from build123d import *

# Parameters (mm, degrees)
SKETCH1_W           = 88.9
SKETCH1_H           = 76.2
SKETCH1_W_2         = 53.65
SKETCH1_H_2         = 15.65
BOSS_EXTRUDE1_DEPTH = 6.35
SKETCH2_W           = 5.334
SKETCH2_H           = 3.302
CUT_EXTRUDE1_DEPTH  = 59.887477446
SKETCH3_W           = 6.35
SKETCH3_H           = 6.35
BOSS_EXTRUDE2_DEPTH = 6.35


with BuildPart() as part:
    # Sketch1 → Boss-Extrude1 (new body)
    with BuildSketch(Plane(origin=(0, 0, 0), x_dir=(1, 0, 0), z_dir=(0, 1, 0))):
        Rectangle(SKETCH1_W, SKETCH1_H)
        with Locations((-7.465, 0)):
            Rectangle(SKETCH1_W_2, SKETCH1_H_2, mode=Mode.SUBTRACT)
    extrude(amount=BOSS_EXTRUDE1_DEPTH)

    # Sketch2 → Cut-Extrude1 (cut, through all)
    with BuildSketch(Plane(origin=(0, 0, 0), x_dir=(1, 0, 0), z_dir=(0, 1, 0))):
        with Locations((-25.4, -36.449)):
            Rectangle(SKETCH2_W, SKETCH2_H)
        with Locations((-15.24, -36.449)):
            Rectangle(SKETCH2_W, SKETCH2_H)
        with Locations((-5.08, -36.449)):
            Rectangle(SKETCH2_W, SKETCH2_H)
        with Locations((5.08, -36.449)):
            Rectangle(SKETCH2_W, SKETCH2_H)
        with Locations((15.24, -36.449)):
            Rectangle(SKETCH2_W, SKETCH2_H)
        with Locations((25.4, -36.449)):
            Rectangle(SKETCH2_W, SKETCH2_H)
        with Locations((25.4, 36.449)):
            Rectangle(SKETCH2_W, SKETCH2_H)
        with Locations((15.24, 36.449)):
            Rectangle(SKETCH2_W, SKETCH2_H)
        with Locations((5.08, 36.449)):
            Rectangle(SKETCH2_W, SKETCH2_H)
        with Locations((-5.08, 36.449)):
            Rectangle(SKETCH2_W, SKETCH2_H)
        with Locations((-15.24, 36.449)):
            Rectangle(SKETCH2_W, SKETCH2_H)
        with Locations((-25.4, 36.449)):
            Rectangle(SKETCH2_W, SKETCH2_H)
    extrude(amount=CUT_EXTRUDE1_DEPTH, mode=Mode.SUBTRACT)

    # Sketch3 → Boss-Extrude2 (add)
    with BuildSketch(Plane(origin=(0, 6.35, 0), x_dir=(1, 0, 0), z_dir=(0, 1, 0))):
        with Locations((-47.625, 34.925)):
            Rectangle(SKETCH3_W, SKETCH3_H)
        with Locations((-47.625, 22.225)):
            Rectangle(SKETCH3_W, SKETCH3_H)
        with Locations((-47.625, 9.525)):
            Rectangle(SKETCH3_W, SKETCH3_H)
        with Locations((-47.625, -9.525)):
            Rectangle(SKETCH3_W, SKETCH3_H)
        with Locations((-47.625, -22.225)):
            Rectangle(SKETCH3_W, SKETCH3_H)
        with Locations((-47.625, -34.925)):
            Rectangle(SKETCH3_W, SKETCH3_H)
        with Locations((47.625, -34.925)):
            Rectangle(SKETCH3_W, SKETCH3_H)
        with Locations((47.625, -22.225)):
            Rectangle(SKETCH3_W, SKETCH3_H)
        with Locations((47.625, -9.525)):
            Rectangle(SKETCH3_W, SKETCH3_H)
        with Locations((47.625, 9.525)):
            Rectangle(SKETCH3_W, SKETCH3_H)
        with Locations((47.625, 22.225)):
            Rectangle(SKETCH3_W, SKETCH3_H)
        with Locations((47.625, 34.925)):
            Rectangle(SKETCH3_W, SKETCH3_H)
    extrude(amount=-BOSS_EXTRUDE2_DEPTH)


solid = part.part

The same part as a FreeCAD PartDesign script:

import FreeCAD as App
import Part
import Sketcher

V = App.Vector
Q = App.Units.Quantity

doc = App.newDocument("Part")
body = doc.addObject("PartDesign::Body", "Body")

# Sketch on XZ plane
sketch1 = body.newObject("Sketcher::SketchObject", "Sketch")
sketch1.AttachmentSupport = (doc.getObject("XZ_Plane"), [""])
sketch1.MapMode = "FlatFace"
sketch1.addGeometry([
    Part.LineSegment(V(-44, -38, 0), V(-44, 38, 0)),  # 0
    Part.LineSegment(V(-44, 38, 0), V(44, 38, 0)),  # 1
    Part.LineSegment(V(44, 38, 0), V(44, -38, 0)),  # 2
    Part.LineSegment(V(44, -38, 0), V(-44, -38, 0)),  # 3
    Part.LineSegment(V(19, 8, 0), V(-34, 8, 0)),  # 4
    Part.LineSegment(V(-34, 8, 0), V(-34, -8, 0)),  # 5
    Part.LineSegment(V(-34, -8, 0), V(19, -8, 0)),  # 6
    Part.LineSegment(V(19, -8, 0), V(19, 8, 0)),  # 7
], False)
sketch1.addConstraint([
    Sketcher.Constraint("Coincident", 0, 2, 1, 1),
    Sketcher.Constraint("Coincident", 1, 2, 2, 1),
    Sketcher.Constraint("Coincident", 2, 2, 3, 1),
    Sketcher.Constraint("Coincident", 3, 2, 0, 1),
    Sketcher.Constraint("Coincident", 4, 2, 5, 1),
    Sketcher.Constraint("Coincident", 5, 2, 6, 1),
    Sketcher.Constraint("Coincident", 6, 2, 7, 1),
    Sketcher.Constraint("Coincident", 7, 2, 4, 1),
    Sketcher.Constraint("Vertical", 0),
    Sketcher.Constraint("Horizontal", 1),
    Sketcher.Constraint("Vertical", 2),
    Sketcher.Constraint("Horizontal", 3),
    Sketcher.Constraint("Horizontal", 4),
    Sketcher.Constraint("Vertical", 5),
    Sketcher.Constraint("Horizontal", 6),
    Sketcher.Constraint("Vertical", 7),
    Sketcher.Constraint("Symmetric", 0, 2, 2, 2, -1, 1),
    Sketcher.Constraint("DistanceY", 0, 1, 0, 2, Q("3 in")),
    Sketcher.Constraint("DistanceX", 1, 1, 1, 2, Q("3.5 in")),
    Sketcher.Constraint("DistanceX", 0, 2, 4, 2, Q("0.4 in")),
    Sketcher.Constraint("DistanceX", 4, 2, 4, 1, 53.65),
    Sketcher.Constraint("DistanceY", 5, 2, 5, 1, 15.65),
    Sketcher.Constraint("DistanceY", -1, 1, 4, 2, 7.825),
])
pad1 = body.newObject("PartDesign::Pad", "Pad")
pad1.Profile = sketch1
pad1.Length = Q("0.25 in")
pad1.Reversed = True

# Sketch on XZ plane
sketch2 = body.newObject("Sketcher::SketchObject", "Sketch001")
sketch2.AttachmentSupport = (doc.getObject("XZ_Plane"), [""])
sketch2.MapMode = "FlatFace"
sketch2.addGeometry([
    Part.LineSegment(V(-28.1, 34.8, 0), V(-28.1, 38.1, 0)),  # 0
    Part.LineSegment(V(-28.1, 38.1, 0), V(-22.7, 38.1, 0)),  # 1
    Part.LineSegment(V(-22.7, 38.1, 0), V(-22.7, 34.8, 0)),  # 2
    Part.LineSegment(V(-22.7, 34.8, 0), V(-28.1, 34.8, 0)),  # 3
    Part.LineSegment(V(-17.9, 34.8, 0), V(-17.9, 38.1, 0)),  # 4
    Part.LineSegment(V(-17.9, 38.1, 0), V(-12.6, 38.1, 0)),  # 5
    Part.LineSegment(V(-12.6, 38.1, 0), V(-12.6, 34.8, 0)),  # 6
    Part.LineSegment(V(-12.6, 34.8, 0), V(-17.9, 34.8, 0)),  # 7
    Part.LineSegment(V(-7.7, 34.8, 0), V(-7.7, 38.1, 0)),  # 8
    Part.LineSegment(V(-7.7, 38.1, 0), V(-2.4, 38.1, 0)),  # 9
    Part.LineSegment(V(-2.4, 38.1, 0), V(-2.4, 34.8, 0)),  # 10
    Part.LineSegment(V(-2.4, 34.8, 0), V(-7.7, 34.8, 0)),  # 11
    Part.LineSegment(V(2.4, 34.8, 0), V(2.4, 38.1, 0)),  # 12
    Part.LineSegment(V(2.4, 38.1, 0), V(7.7, 38.1, 0)),  # 13
    Part.LineSegment(V(7.7, 38.1, 0), V(7.7, 34.8, 0)),  # 14
    Part.LineSegment(V(7.7, 34.8, 0), V(2.4, 34.8, 0)),  # 15
    Part.LineSegment(V(12.6, 34.8, 0), V(12.6, 38.1, 0)),  # 16
    Part.LineSegment(V(12.6, 38.1, 0), V(17.9, 38.1, 0)),  # 17
    Part.LineSegment(V(17.9, 38.1, 0), V(17.9, 34.8, 0)),  # 18
    Part.LineSegment(V(17.9, 34.8, 0), V(12.6, 34.8, 0)),  # 19
    Part.LineSegment(V(22.7, 34.8, 0), V(22.7, 38.1, 0)),  # 20
    Part.LineSegment(V(22.7, 38.1, 0), V(28.1, 38.1, 0)),  # 21
    Part.LineSegment(V(28.1, 38.1, 0), V(28.1, 34.8, 0)),  # 22
    Part.LineSegment(V(28.1, 34.8, 0), V(22.7, 34.8, 0)),  # 23
    Part.LineSegment(V(22.7, -38.1, 0), V(22.7, -34.8, 0)),  # 24
    Part.LineSegment(V(22.7, -34.8, 0), V(28.1, -34.8, 0)),  # 25
    Part.LineSegment(V(28.1, -34.8, 0), V(28.1, -38.1, 0)),  # 26
    Part.LineSegment(V(28.1, -38.1, 0), V(22.7, -38.1, 0)),  # 27
    Part.LineSegment(V(12.6, -38.1, 0), V(12.6, -34.8, 0)),  # 28
    Part.LineSegment(V(12.6, -34.8, 0), V(17.9, -34.8, 0)),  # 29
    Part.LineSegment(V(17.9, -34.8, 0), V(17.9, -38.1, 0)),  # 30
    Part.LineSegment(V(17.9, -38.1, 0), V(12.6, -38.1, 0)),  # 31
    Part.LineSegment(V(2.4, -38.1, 0), V(2.4, -34.8, 0)),  # 32
    Part.LineSegment(V(2.4, -34.8, 0), V(7.7, -34.8, 0)),  # 33
    Part.LineSegment(V(7.7, -34.8, 0), V(7.7, -38.1, 0)),  # 34
    Part.LineSegment(V(7.7, -38.1, 0), V(2.4, -38.1, 0)),  # 35
    Part.LineSegment(V(-7.7, -38.1, 0), V(-7.7, -34.8, 0)),  # 36
    Part.LineSegment(V(-7.7, -34.8, 0), V(-2.4, -34.8, 0)),  # 37
    Part.LineSegment(V(-2.4, -34.8, 0), V(-2.4, -38.1, 0)),  # 38
    Part.LineSegment(V(-2.4, -38.1, 0), V(-7.7, -38.1, 0)),  # 39
    Part.LineSegment(V(-17.9, -38.1, 0), V(-17.9, -34.8, 0)),  # 40
    Part.LineSegment(V(-17.9, -34.8, 0), V(-12.6, -34.8, 0)),  # 41
    Part.LineSegment(V(-12.6, -34.8, 0), V(-12.6, -38.1, 0)),  # 42
    Part.LineSegment(V(-12.6, -38.1, 0), V(-17.9, -38.1, 0)),  # 43
    Part.LineSegment(V(-28.1, -38.1, 0), V(-28.1, -34.8, 0)),  # 44
    Part.LineSegment(V(-28.1, -34.8, 0), V(-22.7, -34.8, 0)),  # 45
    Part.LineSegment(V(-22.7, -34.8, 0), V(-22.7, -38.1, 0)),  # 46
    Part.LineSegment(V(-22.7, -38.1, 0), V(-28.1, -38.1, 0)),  # 47
], False)
sketch2.addConstraint([
    Sketcher.Constraint("Coincident", 0, 2, 1, 1),
    Sketcher.Constraint("Coincident", 1, 2, 2, 1),
    Sketcher.Constraint("Coincident", 2, 2, 3, 1),
    Sketcher.Constraint("Coincident", 3, 2, 0, 1),
    Sketcher.Constraint("Coincident", 4, 2, 5, 1),
    Sketcher.Constraint("Coincident", 5, 2, 6, 1),
    Sketcher.Constraint("Coincident", 6, 2, 7, 1),
    Sketcher.Constraint("Coincident", 7, 2, 4, 1),
    Sketcher.Constraint("Coincident", 8, 2, 9, 1),
    Sketcher.Constraint("Coincident", 9, 2, 10, 1),
    Sketcher.Constraint("Coincident", 10, 2, 11, 1),
    Sketcher.Constraint("Coincident", 11, 2, 8, 1),
    Sketcher.Constraint("Coincident", 12, 2, 13, 1),
    Sketcher.Constraint("Coincident", 13, 2, 14, 1),
    Sketcher.Constraint("Coincident", 14, 2, 15, 1),
    Sketcher.Constraint("Coincident", 15, 2, 12, 1),
    Sketcher.Constraint("Coincident", 16, 2, 17, 1),
    Sketcher.Constraint("Coincident", 17, 2, 18, 1),
    Sketcher.Constraint("Coincident", 18, 2, 19, 1),
    Sketcher.Constraint("Coincident", 19, 2, 16, 1),
    Sketcher.Constraint("Coincident", 20, 2, 21, 1),
    Sketcher.Constraint("Coincident", 21, 2, 22, 1),
    Sketcher.Constraint("Coincident", 22, 2, 23, 1),
    Sketcher.Constraint("Coincident", 23, 2, 20, 1),
    Sketcher.Constraint("Coincident", 24, 2, 25, 1),
    Sketcher.Constraint("Coincident", 25, 2, 26, 1),
    Sketcher.Constraint("Coincident", 26, 2, 27, 1),
    Sketcher.Constraint("Coincident", 27, 2, 24, 1),
    Sketcher.Constraint("Coincident", 28, 2, 29, 1),
    Sketcher.Constraint("Coincident", 29, 2, 30, 1),
    Sketcher.Constraint("Coincident", 30, 2, 31, 1),
    Sketcher.Constraint("Coincident", 31, 2, 28, 1),
    Sketcher.Constraint("Coincident", 32, 2, 33, 1),
    Sketcher.Constraint("Coincident", 33, 2, 34, 1),
    Sketcher.Constraint("Coincident", 34, 2, 35, 1),
    Sketcher.Constraint("Coincident", 35, 2, 32, 1),
    Sketcher.Constraint("Coincident", 36, 2, 37, 1),
    Sketcher.Constraint("Coincident", 37, 2, 38, 1),
    Sketcher.Constraint("Coincident", 38, 2, 39, 1),
    Sketcher.Constraint("Coincident", 39, 2, 36, 1),
    Sketcher.Constraint("Coincident", 40, 2, 41, 1),
    Sketcher.Constraint("Coincident", 41, 2, 42, 1),
    Sketcher.Constraint("Coincident", 42, 2, 43, 1),
    Sketcher.Constraint("Coincident", 43, 2, 40, 1),
    Sketcher.Constraint("Coincident", 44, 2, 45, 1),
    Sketcher.Constraint("Coincident", 45, 2, 46, 1),
    Sketcher.Constraint("Coincident", 46, 2, 47, 1),
    Sketcher.Constraint("Coincident", 47, 2, 44, 1),
    Sketcher.Constraint("Vertical", 0),
    Sketcher.Constraint("Horizontal", 1),
    Sketcher.Constraint("Vertical", 2),
    Sketcher.Constraint("Horizontal", 3),
    Sketcher.Constraint("Vertical", 4),
    Sketcher.Constraint("Horizontal", 5),
    Sketcher.Constraint("Vertical", 6),
    Sketcher.Constraint("Horizontal", 7),
    Sketcher.Constraint("Vertical", 8),
    Sketcher.Constraint("Horizontal", 9),
    Sketcher.Constraint("Vertical", 10),
    Sketcher.Constraint("Horizontal", 11),
    Sketcher.Constraint("Vertical", 12),
    Sketcher.Constraint("Horizontal", 13),
    Sketcher.Constraint("Vertical", 14),
    Sketcher.Constraint("Horizontal", 15),
    Sketcher.Constraint("Vertical", 16),
    Sketcher.Constraint("Horizontal", 17),
    Sketcher.Constraint("Vertical", 18),
    Sketcher.Constraint("Horizontal", 19),
    Sketcher.Constraint("Vertical", 20),
    Sketcher.Constraint("Horizontal", 21),
    Sketcher.Constraint("Vertical", 22),
    Sketcher.Constraint("Horizontal", 23),
    Sketcher.Constraint("Vertical", 24),
    Sketcher.Constraint("Horizontal", 25),
    Sketcher.Constraint("Vertical", 26),
    Sketcher.Constraint("Horizontal", 27),
    Sketcher.Constraint("Vertical", 28),
    Sketcher.Constraint("Horizontal", 29),
    Sketcher.Constraint("Vertical", 30),
    Sketcher.Constraint("Horizontal", 31),
    Sketcher.Constraint("Vertical", 32),
    Sketcher.Constraint("Horizontal", 33),
    Sketcher.Constraint("Vertical", 34),
    Sketcher.Constraint("Horizontal", 35),
    Sketcher.Constraint("Vertical", 36),
    Sketcher.Constraint("Horizontal", 37),
    Sketcher.Constraint("Vertical", 38),
    Sketcher.Constraint("Horizontal", 39),
    Sketcher.Constraint("Vertical", 40),
    Sketcher.Constraint("Horizontal", 41),
    Sketcher.Constraint("Vertical", 42),
    Sketcher.Constraint("Horizontal", 43),
    Sketcher.Constraint("Vertical", 44),
    Sketcher.Constraint("Horizontal", 45),
    Sketcher.Constraint("Vertical", 46),
    Sketcher.Constraint("Horizontal", 47),
    Sketcher.Constraint("Symmetric", 2, 2, 24, 2, -1, 1),
    Sketcher.Constraint("Symmetric", 0, 2, 26, 2, -1, 1),
    Sketcher.Constraint("Symmetric", 6, 2, 28, 2, -1, 1),
    Sketcher.Constraint("Symmetric", 4, 2, 30, 2, -1, 1),
    Sketcher.Constraint("Symmetric", 10, 2, 32, 2, -1, 1),
    Sketcher.Constraint("Symmetric", 8, 2, 34, 2, -1, 1),
    Sketcher.Constraint("Symmetric", 14, 2, 36, 2, -1, 1),
    Sketcher.Constraint("Symmetric", 12, 2, 38, 2, -1, 1),
    Sketcher.Constraint("Symmetric", 18, 2, 40, 2, -1, 1),
    Sketcher.Constraint("Symmetric", 16, 2, 42, 2, -1, 1),
    Sketcher.Constraint("Symmetric", 22, 2, 44, 2, -1, 1),
    Sketcher.Constraint("Symmetric", 20, 2, 46, 2, -1, 1),
    Sketcher.Constraint("Symmetric", 9, 2, 12, 2, -2),
    Sketcher.Constraint("Symmetric", 11, 2, 14, 2, -2),
    Sketcher.Constraint("Symmetric", 5, 2, 16, 2, -2),
    Sketcher.Constraint("Symmetric", 7, 2, 18, 2, -2),
    Sketcher.Constraint("Symmetric", 1, 2, 20, 2, -2),
    Sketcher.Constraint("Symmetric", 3, 2, 22, 2, -2),
    Sketcher.Constraint("Horizontal", 1, 2, 4, 2),
    Sketcher.Constraint("Horizontal", 3, 2, 6, 2),
    Sketcher.Constraint("Horizontal", 5, 2, 8, 2),
    Sketcher.Constraint("Horizontal", 7, 2, 10, 2),
    Sketcher.Constraint("Equal", 3, 5),
    Sketcher.Constraint("Equal", 7, 9),
    Sketcher.Constraint("DistanceX", 1, 1, 1, 2, Q("0.21 in")),
    Sketcher.Constraint("DistanceY", 0, 1, 0, 2, Q("0.13 in")),
    Sketcher.Constraint("DistanceY", -1, 1, 0, 2, Q("1.5 in")),
    Sketcher.Constraint("DistanceX", 0, 2, 4, 2, Q("0.4 in")),
    Sketcher.Constraint("DistanceX", 4, 2, 8, 2, Q("0.4 in")),
    Sketcher.Constraint("DistanceX", 8, 2, 12, 2, Q("0.4 in")),
])
pocket1 = body.newObject("PartDesign::Pocket", "Pocket")
pocket1.Profile = sketch2
pocket1.Type = "ThroughAll"

# Sketch on XZ plane
sketch3 = body.newObject("Sketcher::SketchObject", "Sketch002")
sketch3.AttachmentSupport = (doc.getObject("XZ_Plane"), [""])
sketch3.MapMode = "FlatFace"
sketch3.AttachmentOffset = App.Placement(V(0, 0, -0.25 * 25.4), App.Rotation())
sketch3.addGeometry([
    Part.LineSegment(V(-51, -38, 0), V(-51, -32, 0)),  # 0
    Part.LineSegment(V(-51, -32, 0), V(-44, -32, 0)),  # 1
    Part.LineSegment(V(-44, -32, 0), V(-44, -38, 0)),  # 2
    Part.LineSegment(V(-44, -38, 0), V(-51, -38, 0)),  # 3
    Part.LineSegment(V(-51, -25, 0), V(-51, -19, 0)),  # 4
    Part.LineSegment(V(-51, -19, 0), V(-44, -19, 0)),  # 5
    Part.LineSegment(V(-44, -19, 0), V(-44, -25, 0)),  # 6
    Part.LineSegment(V(-44, -25, 0), V(-51, -25, 0)),  # 7
    Part.LineSegment(V(-51, -13, 0), V(-51, -6, 0)),  # 8
    Part.LineSegment(V(-51, -6, 0), V(-44, -6, 0)),  # 9
    Part.LineSegment(V(-44, -6, 0), V(-44, -13, 0)),  # 10
    Part.LineSegment(V(-44, -13, 0), V(-51, -13, 0)),  # 11
    Part.LineSegment(V(-51, 6, 0), V(-51, 13, 0)),  # 12
    Part.LineSegment(V(-51, 13, 0), V(-44, 13, 0)),  # 13
    Part.LineSegment(V(-44, 13, 0), V(-44, 6, 0)),  # 14
    Part.LineSegment(V(-44, 6, 0), V(-51, 6, 0)),  # 15
    Part.LineSegment(V(-51, 19, 0), V(-51, 25, 0)),  # 16
    Part.LineSegment(V(-51, 25, 0), V(-44, 25, 0)),  # 17
    Part.LineSegment(V(-44, 25, 0), V(-44, 19, 0)),  # 18
    Part.LineSegment(V(-44, 19, 0), V(-51, 19, 0)),  # 19
    Part.LineSegment(V(-51, 32, 0), V(-51, 38, 0)),  # 20
    Part.LineSegment(V(-51, 38, 0), V(-44, 38, 0)),  # 21
    Part.LineSegment(V(-44, 38, 0), V(-44, 32, 0)),  # 22
    Part.LineSegment(V(-44, 32, 0), V(-51, 32, 0)),  # 23
    Part.LineSegment(V(44, 32, 0), V(44, 38, 0)),  # 24
    Part.LineSegment(V(44, 38, 0), V(51, 38, 0)),  # 25
    Part.LineSegment(V(51, 38, 0), V(51, 32, 0)),  # 26
    Part.LineSegment(V(51, 32, 0), V(44, 32, 0)),  # 27
    Part.LineSegment(V(44, 19, 0), V(44, 25, 0)),  # 28
    Part.LineSegment(V(44, 25, 0), V(51, 25, 0)),  # 29
    Part.LineSegment(V(51, 25, 0), V(51, 19, 0)),  # 30
    Part.LineSegment(V(51, 19, 0), V(44, 19, 0)),  # 31
    Part.LineSegment(V(44, 6, 0), V(44, 13, 0)),  # 32
    Part.LineSegment(V(44, 13, 0), V(51, 13, 0)),  # 33
    Part.LineSegment(V(51, 13, 0), V(51, 6, 0)),  # 34
    Part.LineSegment(V(51, 6, 0), V(44, 6, 0)),  # 35
    Part.LineSegment(V(44, -13, 0), V(44, -6, 0)),  # 36
    Part.LineSegment(V(44, -6, 0), V(51, -6, 0)),  # 37
    Part.LineSegment(V(51, -6, 0), V(51, -13, 0)),  # 38
    Part.LineSegment(V(51, -13, 0), V(44, -13, 0)),  # 39
    Part.LineSegment(V(44, -25, 0), V(44, -19, 0)),  # 40
    Part.LineSegment(V(44, -19, 0), V(51, -19, 0)),  # 41
    Part.LineSegment(V(51, -19, 0), V(51, -25, 0)),  # 42
    Part.LineSegment(V(51, -25, 0), V(44, -25, 0)),  # 43
    Part.LineSegment(V(44, -38, 0), V(44, -32, 0)),  # 44
    Part.LineSegment(V(44, -32, 0), V(51, -32, 0)),  # 45
    Part.LineSegment(V(51, -32, 0), V(51, -38, 0)),  # 46
    Part.LineSegment(V(51, -38, 0), V(44, -38, 0)),  # 47
], False)
sketch3.addConstraint([
    Sketcher.Constraint("Coincident", 0, 2, 1, 1),
    Sketcher.Constraint("Coincident", 1, 2, 2, 1),
    Sketcher.Constraint("Coincident", 2, 2, 3, 1),
    Sketcher.Constraint("Coincident", 3, 2, 0, 1),
    Sketcher.Constraint("Coincident", 4, 2, 5, 1),
    Sketcher.Constraint("Coincident", 5, 2, 6, 1),
    Sketcher.Constraint("Coincident", 6, 2, 7, 1),
    Sketcher.Constraint("Coincident", 7, 2, 4, 1),
    Sketcher.Constraint("Coincident", 8, 2, 9, 1),
    Sketcher.Constraint("Coincident", 9, 2, 10, 1),
    Sketcher.Constraint("Coincident", 10, 2, 11, 1),
    Sketcher.Constraint("Coincident", 11, 2, 8, 1),
    Sketcher.Constraint("Coincident", 12, 2, 13, 1),
    Sketcher.Constraint("Coincident", 13, 2, 14, 1),
    Sketcher.Constraint("Coincident", 14, 2, 15, 1),
    Sketcher.Constraint("Coincident", 15, 2, 12, 1),
    Sketcher.Constraint("Coincident", 16, 2, 17, 1),
    Sketcher.Constraint("Coincident", 17, 2, 18, 1),
    Sketcher.Constraint("Coincident", 18, 2, 19, 1),
    Sketcher.Constraint("Coincident", 19, 2, 16, 1),
    Sketcher.Constraint("Coincident", 20, 2, 21, 1),
    Sketcher.Constraint("Coincident", 21, 2, 22, 1),
    Sketcher.Constraint("Coincident", 22, 2, 23, 1),
    Sketcher.Constraint("Coincident", 23, 2, 20, 1),
    Sketcher.Constraint("Coincident", 24, 2, 25, 1),
    Sketcher.Constraint("Coincident", 25, 2, 26, 1),
    Sketcher.Constraint("Coincident", 26, 2, 27, 1),
    Sketcher.Constraint("Coincident", 27, 2, 24, 1),
    Sketcher.Constraint("Coincident", 28, 2, 29, 1),
    Sketcher.Constraint("Coincident", 29, 2, 30, 1),
    Sketcher.Constraint("Coincident", 30, 2, 31, 1),
    Sketcher.Constraint("Coincident", 31, 2, 28, 1),
    Sketcher.Constraint("Coincident", 32, 2, 33, 1),
    Sketcher.Constraint("Coincident", 33, 2, 34, 1),
    Sketcher.Constraint("Coincident", 34, 2, 35, 1),
    Sketcher.Constraint("Coincident", 35, 2, 32, 1),
    Sketcher.Constraint("Coincident", 36, 2, 37, 1),
    Sketcher.Constraint("Coincident", 37, 2, 38, 1),
    Sketcher.Constraint("Coincident", 38, 2, 39, 1),
    Sketcher.Constraint("Coincident", 39, 2, 36, 1),
    Sketcher.Constraint("Coincident", 40, 2, 41, 1),
    Sketcher.Constraint("Coincident", 41, 2, 42, 1),
    Sketcher.Constraint("Coincident", 42, 2, 43, 1),
    Sketcher.Constraint("Coincident", 43, 2, 40, 1),
    Sketcher.Constraint("Coincident", 44, 2, 45, 1),
    Sketcher.Constraint("Coincident", 45, 2, 46, 1),
    Sketcher.Constraint("Coincident", 46, 2, 47, 1),
    Sketcher.Constraint("Coincident", 47, 2, 44, 1),
    Sketcher.Constraint("Vertical", 0),
    Sketcher.Constraint("Horizontal", 1),
    Sketcher.Constraint("Vertical", 2),
    Sketcher.Constraint("Horizontal", 3),
    Sketcher.Constraint("Vertical", 4),
    Sketcher.Constraint("Horizontal", 5),
    Sketcher.Constraint("Vertical", 6),
    Sketcher.Constraint("Horizontal", 7),
    Sketcher.Constraint("Vertical", 8),
    Sketcher.Constraint("Horizontal", 9),
    Sketcher.Constraint("Vertical", 10),
    Sketcher.Constraint("Horizontal", 11),
    Sketcher.Constraint("Vertical", 12),
    Sketcher.Constraint("Horizontal", 13),
    Sketcher.Constraint("Vertical", 14),
    Sketcher.Constraint("Horizontal", 15),
    Sketcher.Constraint("Vertical", 16),
    Sketcher.Constraint("Horizontal", 17),
    Sketcher.Constraint("Vertical", 18),
    Sketcher.Constraint("Horizontal", 19),
    Sketcher.Constraint("Vertical", 20),
    Sketcher.Constraint("Horizontal", 21),
    Sketcher.Constraint("Vertical", 22),
    Sketcher.Constraint("Horizontal", 23),
    Sketcher.Constraint("Vertical", 24),
    Sketcher.Constraint("Horizontal", 25),
    Sketcher.Constraint("Vertical", 26),
    Sketcher.Constraint("Horizontal", 27),
    Sketcher.Constraint("Vertical", 28),
    Sketcher.Constraint("Horizontal", 29),
    Sketcher.Constraint("Vertical", 30),
    Sketcher.Constraint("Horizontal", 31),
    Sketcher.Constraint("Vertical", 32),
    Sketcher.Constraint("Horizontal", 33),
    Sketcher.Constraint("Vertical", 34),
    Sketcher.Constraint("Horizontal", 35),
    Sketcher.Constraint("Vertical", 36),
    Sketcher.Constraint("Horizontal", 37),
    Sketcher.Constraint("Vertical", 38),
    Sketcher.Constraint("Horizontal", 39),
    Sketcher.Constraint("Vertical", 40),
    Sketcher.Constraint("Horizontal", 41),
    Sketcher.Constraint("Vertical", 42),
    Sketcher.Constraint("Horizontal", 43),
    Sketcher.Constraint("Vertical", 44),
    Sketcher.Constraint("Horizontal", 45),
    Sketcher.Constraint("Vertical", 46),
    Sketcher.Constraint("Horizontal", 47),
    Sketcher.Constraint("Symmetric", 2, 2, 24, 2, -1, 1),
    Sketcher.Constraint("Symmetric", 0, 2, 26, 2, -1, 1),
    Sketcher.Constraint("Symmetric", 6, 2, 28, 2, -1, 1),
    Sketcher.Constraint("Symmetric", 4, 2, 30, 2, -1, 1),
    Sketcher.Constraint("Symmetric", 10, 2, 32, 2, -1, 1),
    Sketcher.Constraint("Symmetric", 8, 2, 34, 2, -1, 1),
    Sketcher.Constraint("Symmetric", 14, 2, 36, 2, -1, 1),
    Sketcher.Constraint("Symmetric", 12, 2, 38, 2, -1, 1),
    Sketcher.Constraint("Symmetric", 18, 2, 40, 2, -1, 1),
    Sketcher.Constraint("Symmetric", 16, 2, 42, 2, -1, 1),
    Sketcher.Constraint("Symmetric", 22, 2, 44, 2, -1, 1),
    Sketcher.Constraint("Symmetric", 20, 2, 46, 2, -1, 1),
    Sketcher.Constraint("Symmetric", 21, 2, 24, 2, -2),
    Sketcher.Constraint("Symmetric", 23, 2, 26, 2, -2),
    Sketcher.Constraint("Symmetric", 17, 2, 28, 2, -2),
    Sketcher.Constraint("Symmetric", 19, 2, 30, 2, -2),
    Sketcher.Constraint("Symmetric", 13, 2, 32, 2, -2),
    Sketcher.Constraint("Symmetric", 15, 2, 34, 2, -2),
    Sketcher.Constraint("Vertical", 3, 2, 4, 2),
    Sketcher.Constraint("Vertical", 2, 2, 5, 2),
    Sketcher.Constraint("Vertical", 7, 2, 8, 2),
    Sketcher.Constraint("Vertical", 6, 2, 9, 2),
    Sketcher.Constraint("Equal", 47, 0),
    Sketcher.Constraint("Equal", 2, 4),
    Sketcher.Constraint("Equal", 6, 8),
    Sketcher.Constraint("DistanceX", 0, 2, -1, 1, Q("2 in")),
    Sketcher.Constraint("DistanceY", 6, 2, -1, 1, Q("1 in")),
    Sketcher.Constraint("DistanceY", 0, 2, 8, 2, Q("1 in")),
    Sketcher.Constraint("DistanceY", 11, 2, 12, 2, Q("1 in")),
    Sketcher.Constraint("DistanceY", 36, 2, 31, 2, Q("1 in")),
])
pad2 = body.newObject("PartDesign::Pad", "Pad001")
pad2.Profile = sketch3
pad2.Length = Q("0.25 in")

doc.recompute()
